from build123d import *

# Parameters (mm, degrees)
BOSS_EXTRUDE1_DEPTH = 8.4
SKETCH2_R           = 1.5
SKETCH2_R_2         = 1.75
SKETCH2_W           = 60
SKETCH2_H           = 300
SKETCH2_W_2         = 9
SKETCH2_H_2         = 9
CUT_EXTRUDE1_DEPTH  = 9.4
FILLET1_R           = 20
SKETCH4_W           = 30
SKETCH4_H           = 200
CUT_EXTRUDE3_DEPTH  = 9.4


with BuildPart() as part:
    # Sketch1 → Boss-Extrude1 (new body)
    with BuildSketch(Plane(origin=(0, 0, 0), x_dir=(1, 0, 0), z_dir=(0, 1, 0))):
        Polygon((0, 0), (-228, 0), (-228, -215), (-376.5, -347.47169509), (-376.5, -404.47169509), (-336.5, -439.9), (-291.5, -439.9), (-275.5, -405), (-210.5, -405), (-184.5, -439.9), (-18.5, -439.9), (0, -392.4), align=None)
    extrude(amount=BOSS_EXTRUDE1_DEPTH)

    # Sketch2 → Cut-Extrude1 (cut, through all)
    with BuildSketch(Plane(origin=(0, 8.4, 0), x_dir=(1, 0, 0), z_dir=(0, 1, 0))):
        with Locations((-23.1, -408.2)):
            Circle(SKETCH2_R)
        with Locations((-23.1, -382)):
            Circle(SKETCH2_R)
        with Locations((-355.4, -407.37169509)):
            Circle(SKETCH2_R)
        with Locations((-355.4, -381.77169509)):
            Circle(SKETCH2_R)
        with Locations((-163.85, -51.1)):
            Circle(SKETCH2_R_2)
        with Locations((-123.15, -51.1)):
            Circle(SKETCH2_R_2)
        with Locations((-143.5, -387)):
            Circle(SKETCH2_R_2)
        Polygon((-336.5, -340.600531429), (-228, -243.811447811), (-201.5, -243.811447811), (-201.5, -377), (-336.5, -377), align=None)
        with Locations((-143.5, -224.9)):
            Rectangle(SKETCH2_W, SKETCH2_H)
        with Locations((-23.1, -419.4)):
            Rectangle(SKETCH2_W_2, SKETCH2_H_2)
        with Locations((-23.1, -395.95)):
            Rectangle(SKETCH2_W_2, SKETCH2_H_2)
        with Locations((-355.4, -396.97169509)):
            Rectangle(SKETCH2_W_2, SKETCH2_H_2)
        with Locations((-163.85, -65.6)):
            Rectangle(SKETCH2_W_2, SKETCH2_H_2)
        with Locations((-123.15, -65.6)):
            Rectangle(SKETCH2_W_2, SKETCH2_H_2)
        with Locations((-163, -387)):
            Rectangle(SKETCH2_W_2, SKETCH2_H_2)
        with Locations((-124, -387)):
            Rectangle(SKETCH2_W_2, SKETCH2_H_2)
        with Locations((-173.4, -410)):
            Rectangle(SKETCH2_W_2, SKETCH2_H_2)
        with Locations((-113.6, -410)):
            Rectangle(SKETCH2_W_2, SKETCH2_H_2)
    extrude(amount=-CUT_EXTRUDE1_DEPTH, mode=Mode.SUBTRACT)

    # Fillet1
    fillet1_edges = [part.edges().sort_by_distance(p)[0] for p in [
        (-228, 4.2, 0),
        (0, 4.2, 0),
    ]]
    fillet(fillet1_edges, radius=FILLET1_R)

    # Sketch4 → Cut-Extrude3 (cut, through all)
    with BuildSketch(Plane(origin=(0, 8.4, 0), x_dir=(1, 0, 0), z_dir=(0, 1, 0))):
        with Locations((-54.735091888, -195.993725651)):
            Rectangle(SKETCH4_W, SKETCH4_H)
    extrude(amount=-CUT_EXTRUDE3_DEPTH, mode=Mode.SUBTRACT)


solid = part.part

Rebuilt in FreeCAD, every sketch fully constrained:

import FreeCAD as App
import Part
import Sketcher
Q = App.Units.Quantity


def edges_at(feature, points):
    """Names of the edges that pass closest to the given points."""
    edges = feature.Shape.Edges
    near = lambda p: min(range(len(edges)), key=lambda i: edges[i].distToShape(Part.Vertex(*p))[0])
    return sorted({f"Edge{near(p) + 1}" for p in points})


def add_polygon(sketch, points):
    """Adds a closed chain of lines whose ends are joined by coincident constraints."""
    first, n = sketch.GeometryCount, len(points)
    for a, b in zip(points, points[1:] + points[:1]):
        sketch.addGeometry(Part.LineSegment(App.Vector(*a, 0), App.Vector(*b, 0)), False)
    for i in range(n):
        sketch.addConstraint(Sketcher.Constraint("Coincident", first + i, 2, first + (i + 1) % n, 1))

doc = App.newDocument("Part")
body = doc.addObject("PartDesign::Body", "Body")

# Sketch on XZ plane
sketch1 = doc.addObject("Sketcher::SketchObject", "Sketch")
body.addObject(sketch1)
sketch1.AttachmentSupport = (doc.XZ_Plane, [""])
sketch1.MapMode = "FlatFace"
add_polygon(sketch1, [(0, 0), (-228, 0), (-228, 215), (-376.5, 347.471695), (-376.5, 404.471695), (-336.5, 439.9), (-291.5, 439.9), (-275.5, 405), (-210.5, 405), (-184.5, 439.9), (-18.5, 439.9), (0, 392.4)])  # lines 0-11
sketch1.addConstraint([
    Sketcher.Constraint("Horizontal", 0),
    Sketcher.Constraint("Vertical", 1),
    Sketcher.Constraint("Vertical", 3),
    Sketcher.Constraint("Horizontal", 5),
    Sketcher.Constraint("Horizontal", 7),
    Sketcher.Constraint("Horizontal", 9),
    Sketcher.Constraint("Vertical", 11),
    Sketcher.Constraint("Coincident", 11, 2, -1, 1),
    Sketcher.Constraint("Horizontal", 5, 2, 8, 2),
    Sketcher.Constraint("DistanceX", 0, 2, 0, 1, Q("228 mm")),
    Sketcher.Constraint("DistanceX", 5, 1, 5, 2, Q("45 mm")),
    Sketcher.Constraint("DistanceX", 7, 1, 7, 2, Q("65 mm")),
    Sketcher.Constraint("DistanceX", 9, 1, 9, 2, Q("166 mm")),
    Sketcher.Constraint("DistanceY", 1, 1, 1, 2, Q("215 mm")),
    Sketcher.Constraint("DistanceY", 3, 1, 3, 2, Q("57 mm")),
    Sketcher.Constraint("Distance", 2, Q("199 mm")),
    Sketcher.Constraint("DistanceY", 11, 2, 11, 1, Q("392.4 mm")),
    Sketcher.Constraint("DistanceY", -1, 1, 6, 2, Q("405 mm")),
    Sketcher.Constraint("DistanceX", 3, 2, 4, 2, Q("40 mm")),
    Sketcher.Constraint("DistanceX", 5, 2, 6, 2, Q("16 mm")),
    Sketcher.Constraint("DistanceX", 7, 2, 8, 2, Q("26 mm")),
    Sketcher.Constraint("DistanceX", 2, 2, -1, 1, Q("376.5 mm")),
    Sketcher.Constraint("DistanceY", -1, 1, 4, 2, Q("439.9 mm")),
])
pad1 = doc.addObject("PartDesign::Pad", "Pad")
body.addObject(pad1)
pad1.Profile = sketch1
pad1.Length = 8.4
pad1.Reversed = True

# Sketch on XZ plane
sketch2 = doc.addObject("Sketcher::SketchObject", "Sketch001")
body.addObject(sketch2)
sketch2.AttachmentSupport = (doc.XZ_Plane, [""])
sketch2.MapMode = "FlatFace"
sketch2.AttachmentOffset = App.Placement(App.Vector(0, 0, -8.4), App.Rotation())
sketch2.addGeometry(Part.Circle(App.Vector(-23.1, 408.2, 0), App.Vector(0, 0, 1), 1.5), False)  # 0
sketch2.addGeometry(Part.Circle(App.Vector(-23.1, 382, 0), App.Vector(0, 0, 1), 1.5), False)  # 1
sketch2.addGeometry(Part.Circle(App.Vector(-355.4, 407.371695, 0), App.Vector(0, 0, 1), 1.5), False)  # 2
sketch2.addGeometry(Part.Circle(App.Vector(-355.4, 381.771695, 0), App.Vector(0, 0, 1), 1.5), False)  # 3
sketch2.addGeometry(Part.Circle(App.Vector(-163.85, 51.1, 0), App.Vector(0, 0, 1), 1.75), False)  # 4
sketch2.addGeometry(Part.Circle(App.Vector(-123.15, 51.1, 0), App.Vector(0, 0, 1), 1.75), False)  # 5
sketch2.addGeometry(Part.Circle(App.Vector(-143.5, 387, 0), App.Vector(0, 0, 1), 1.75), False)  # 6
add_polygon(sketch2, [(-228, 243.811448), (-336.5, 340.600531), (-336.5, 377), (-201.5, 377), (-201.5, 243.811448)])  # lines 7-11
add_polygon(sketch2, [(-173.5, 74.9), (-173.5, 374.9), (-113.5, 374.9), (-113.5, 74.9)])  # lines 12-15
add_polygon(sketch2, [(-27.6, 414.9), (-27.6, 423.9), (-18.6, 423.9), (-18.6, 414.9)])  # lines 16-19
add_polygon(sketch2, [(-27.6, 391.45), (-27.6, 400.45), (-18.6, 400.45), (-18.6, 391.45)])  # lines 20-23
add_polygon(sketch2, [(-359.9, 392.471695), (-359.9, 401.471695), (-350.9, 401.471695), (-350.9, 392.471695)])  # lines 24-27
add_polygon(sketch2, [(-168.35, 61.1), (-168.35, 70.1), (-159.35, 70.1), (-159.35, 61.1)])  # lines 28-31
add_polygon(sketch2, [(-127.65, 61.1), (-127.65, 70.1), (-118.65, 70.1), (-118.65, 61.1)])  # lines 32-35
add_polygon(sketch2, [(-167.5, 382.5), (-167.5, 391.5), (-158.5, 391.5), (-158.5, 382.5)])  # lines 36-39
add_polygon(sketch2, [(-128.5, 382.5), (-128.5, 391.5), (-119.5, 391.5), (-119.5, 382.5)])  # lines 40-43
add_polygon(sketch2, [(-177.9, 405.5), (-177.9, 414.5), (-168.9, 414.5), (-168.9, 405.5)])  # lines 44-47
add_polygon(sketch2, [(-118.1, 405.5), (-118.1, 414.5), (-109.1, 414.5), (-109.1, 405.5)])  # lines 48-51
sketch2.addConstraint([
    Sketcher.Constraint("Vertical", 8),
    Sketcher.Constraint("Horizontal", 9),
    Sketcher.Constraint("Vertical", 10),
    Sketcher.Constraint("Horizontal", 11),
    Sketcher.Constraint("Vertical", 12),
    Sketcher.Constraint("Horizontal", 13),
    Sketcher.Constraint("Vertical", 14),
    Sketcher.Constraint("Horizontal", 15),
    Sketcher.Constraint("Vertical", 16),
    Sketcher.Constraint("Horizontal", 17),
    Sketcher.Constraint("Vertical", 18),
    Sketcher.Constraint("Horizontal", 19),
    Sketcher.Constraint("Vertical", 20),
    Sketcher.Constraint("Horizontal", 21),
    Sketcher.Constraint("Vertical", 22),
    Sketcher.Constraint("Horizontal", 23),
    Sketcher.Constraint("Vertical", 24),
    Sketcher.Constraint("Horizontal", 25),
    Sketcher.Constraint("Vertical", 26),
    Sketcher.Constraint("Horizontal", 27),
    Sketcher.Constraint("Vertical", 28),
    Sketcher.Constraint("Horizontal", 29),
    Sketcher.Constraint("Vertical", 30),
    Sketcher.Constraint("Horizontal", 31),
    Sketcher.Constraint("Vertical", 32),
    Sketcher.Constraint("Horizontal", 33),
    Sketcher.Constraint("Vertical", 34),
    Sketcher.Constraint("Horizontal", 35),
    Sketcher.Constraint("Vertical", 36),
    Sketcher.Constraint("Horizontal", 37),
    Sketcher.Constraint("Vertical", 38),
    Sketcher.Constraint("Horizontal", 39),
    Sketcher.Constraint("Vertical", 40),
    Sketcher.Constraint("Horizontal", 41),
    Sketcher.Constraint("Vertical", 42),
    Sketcher.Constraint("Horizontal", 43),
    Sketcher.Constraint("Vertical", 44),
    Sketcher.Constraint("Horizontal", 45),
    Sketcher.Constraint("Vertical", 46),
    Sketcher.Constraint("Horizontal", 47),
    Sketcher.Constraint("Vertical", 48),
    Sketcher.Constraint("Horizontal", 49),
    Sketcher.Constraint("Vertical", 50),
    Sketcher.Constraint("Horizontal", 51),
    Sketcher.Constraint("Equal", 0, 1),
    Sketcher.Constraint("Equal", 1, 2),
    Sketcher.Constraint("Equal", 2, 3),
    Sketcher.Constraint("Equal", 4, 5),
    Sketcher.Constraint("Equal", 5, 6),
    Sketcher.Constraint("Horizontal", 4, 3, 5, 3),
    Sketcher.Constraint("Horizontal", 29, 2, 32, 2),
    Sketcher.Constraint("Horizontal", 31, 2, 34, 2),
    Sketcher.Constraint("Horizontal", 37, 2, 40, 2),
    Sketcher.Constraint("Horizontal", 39, 2, 42, 2),
    Sketcher.Constraint("Horizontal", 45, 2, 48, 2),
    Sketcher.Constraint("Horizontal", 47, 2, 50, 2),
    Sketcher.Constraint("Vertical", 0, 3, 1, 3),
    Sketcher.Constraint("Vertical", 2, 3, 3, 3),
    Sketcher.Constraint("Vertical", 19, 2, 20, 2),
    Sketcher.Constraint("Vertical", 18, 2, 21, 2),
    Sketcher.Constraint("Equal", 23, 25),
    Sketcher.Constraint("Equal", 27, 29),
    Sketcher.Constraint("Equal", 31, 33),
    Sketcher.Constraint("Equal", 35, 37),
    Sketcher.Constraint("Equal", 39, 41),
    Sketcher.Constraint("Equal", 43, 45),
    Sketcher.Constraint("Equal", 47, 49),
    Sketcher.Constraint("Equal", 51, 16),
    Sketcher.Constraint("Equal", 18, 20),
    Sketcher.Constraint("Equal", 22, 24),
    Sketcher.Constraint("Equal", 26, 28),
    Sketcher.Constraint("Equal", 34, 36),
    Sketcher.Constraint("Equal", 42, 44),
    Sketcher.Constraint("Diameter", 0, Q("3 mm")),
    Sketcher.Constraint("Diameter", 4, Q("3.5 mm")),
    Sketcher.Constraint("DistanceX", 9, 1, 9, 2, Q("135 mm")),
    Sketcher.Constraint("DistanceX", 13, 1, 13, 2, Q("60 mm")),
    Sketcher.Constraint("DistanceX", 17, 1, 17, 2, Q("9 mm")),
    Sketcher.Constraint("DistanceY", 12, 1, 12, 2, Q("300 mm")),
    Sketcher.Constraint("DistanceX", 11, 2, 11, 1, Q("26.5 mm")),
    Sketcher.Constraint("DistanceY", -1, 1, 1, 3, Q("382 mm")),
    Sketcher.Constraint("DistanceY", -1, 1, 6, 3, Q("387 mm")),
    Sketcher.Constraint("DistanceY", -1, 1, 8, 2, Q("377 mm")),
    Sketcher.Constraint("DistanceX", 11, 2, -1, 1, Q("228 mm")),
    Sketcher.Constraint("DistanceX", 7, 2, 6, 3, Q("193 mm")),
    Sketcher.Constraint("DistanceX", 9, 2, 12, 2, Q("28 mm")),
    Sketcher.Constraint("DistanceY", 13, 2, 16, 2, Q("49 mm")),
    Sketcher.Constraint("DistanceY", 4, 3, 28, 2, Q("19 mm")),
    Sketcher.Constraint("DistanceX", 12, 2, 36, 2, Q("6 mm")),
    Sketcher.Constraint("DistanceX", 6, 3, 40, 2, Q("15 mm")),
    Sketcher.Constraint("DistanceY", 36, 2, 44, 2, Q("23 mm")),
    Sketcher.Constraint("DistanceX", 0, 3, -1, 1, Q("23.1 mm")),
    Sketcher.Constraint("DistanceY", -1, 1, 0, 3, Q("408.2 mm")),
    Sketcher.Constraint("DistanceX", 2, 3, -1, 1, Q("355.4 mm")),
    Sketcher.Constraint("DistanceY", -1, 1, 4, 3, Q("51.1 mm")),
    Sketcher.Constraint("DistanceY", -1, 1, 12, 2, Q("374.9 mm")),
    Sketcher.Constraint("DistanceX", 16, 2, -1, 1, Q("27.6 mm")),
    Sketcher.Constraint("DistanceX", 24, 2, -1, 1, Q("359.9 mm")),
    Sketcher.Constraint("DistanceY", -1, 1, 36, 2, Q("391.5 mm")),
    Sketcher.Constraint("DistanceX", 44, 2, -1, 1, Q("177.9 mm")),
    Sketcher.Constraint("DistanceX", 48, 2, -1, 1, Q("118.1 mm")),
    Sketcher.Constraint("DistanceY", 3, 3, 2, 3, Q("25.6 mm")),
    Sketcher.Constraint("DistanceX", 4, 3, 5, 3, Q("40.7 mm")),
    Sketcher.Constraint("DistanceY", 24, 2, 2, 3, Q("5.9 mm")),
    Sketcher.Constraint("DistanceX", 28, 2, 4, 3, Q("4.5 mm")),
    Sketcher.Constraint("DistanceX", 32, 2, 5, 3, Q("4.5 mm")),
    Sketcher.Constraint("DistanceX", 4, 3, -1, 1, Q("163.85 mm")),
    Sketcher.Constraint("DistanceY", -1, 1, 20, 2, Q("400.45 mm")),
    Sketcher.Constraint("DistanceY", 8, 1, 8, 2, Q("36.399469 mm")),
    Sketcher.Constraint("DistanceY", 10, 2, 10, 1, Q("133.188552 mm")),
    Sketcher.Constraint("DistanceY", -1, 1, 2, 3, Q("407.371695 mm")),
])
pocket1 = doc.addObject("PartDesign::Pocket", "Pocket")
body.addObject(pocket1)
pocket1.Profile = sketch2
pocket1.Type = "ThroughAll"
pocket1.Reversed = True
doc.recompute()

fillet = doc.addObject("PartDesign::Fillet", "Fillet")
body.addObject(fillet)
fillet.Base = (pocket1, edges_at(pocket1, [(-228, 4.2, 0), (0, 4.2, 0)]))
fillet.Radius = 20

# Sketch on XZ plane
sketch3 = doc.addObject("Sketcher::SketchObject", "Sketch002")
body.addObject(sketch3)
sketch3.AttachmentSupport = (doc.XZ_Plane, [""])
sketch3.MapMode = "FlatFace"
sketch3.AttachmentOffset = App.Placement(App.Vector(0, 0, -8.4), App.Rotation())
add_polygon(sketch3, [(-69.735092, 95.993726), (-69.735092, 295.993726), (-39.735092, 295.993726), (-39.735092, 95.993726)])  # lines 0-3
sketch3.addConstraint([
    Sketcher.Constraint("Vertical", 0),
    Sketcher.Constraint("Horizontal", 1),
    Sketcher.Constraint("Vertical", 2),
    Sketcher.Constraint("Horizontal", 3),
    Sketcher.Constraint("DistanceX", 1, 1, 1, 2, Q("30 mm")),
    Sketcher.Constraint("DistanceY", 0, 1, 0, 2, Q("200 mm")),
    Sketcher.Constraint("DistanceX", 0, 2, -1, 1, Q("69.735092 mm")),
    Sketcher.Constraint("DistanceY", -1, 1, 0, 2, Q("295.993726 mm")),
])
pocket2 = doc.addObject("PartDesign::Pocket", "Pocket001")
body.addObject(pocket2)
pocket2.Profile = sketch3
pocket2.Type = "ThroughAll"
pocket2.Reversed = True

doc.recompute()
